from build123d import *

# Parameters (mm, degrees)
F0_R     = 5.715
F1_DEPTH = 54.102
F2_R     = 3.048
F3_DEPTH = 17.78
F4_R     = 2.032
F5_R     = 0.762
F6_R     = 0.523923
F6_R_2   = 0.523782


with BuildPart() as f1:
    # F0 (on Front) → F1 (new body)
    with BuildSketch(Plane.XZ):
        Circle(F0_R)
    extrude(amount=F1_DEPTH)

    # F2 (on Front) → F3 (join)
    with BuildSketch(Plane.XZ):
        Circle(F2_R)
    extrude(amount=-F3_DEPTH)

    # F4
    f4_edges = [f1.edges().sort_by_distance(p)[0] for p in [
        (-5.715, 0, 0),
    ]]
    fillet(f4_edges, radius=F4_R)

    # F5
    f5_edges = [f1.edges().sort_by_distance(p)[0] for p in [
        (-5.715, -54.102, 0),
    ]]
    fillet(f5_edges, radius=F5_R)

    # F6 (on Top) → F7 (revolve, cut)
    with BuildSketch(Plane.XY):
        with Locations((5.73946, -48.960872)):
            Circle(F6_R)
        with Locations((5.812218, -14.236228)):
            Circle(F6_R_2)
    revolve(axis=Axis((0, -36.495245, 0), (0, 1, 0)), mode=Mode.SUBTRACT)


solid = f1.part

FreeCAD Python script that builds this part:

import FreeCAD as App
import Part
import Sketcher

V = App.Vector
Q = App.Units.Quantity


def edges_at(feature, points):
    """Names of the edges that pass closest to the given points."""
    edges = feature.Shape.Edges
    near = lambda p: min(range(len(edges)), key=lambda i: edges[i].distToShape(Part.Vertex(*p))[0])
    return sorted({f"Edge{near(p) + 1}" for p in points})

doc = App.newDocument("Part")
body = doc.addObject("PartDesign::Body", "Body")

# Sketch on XZ plane
sketch1 = body.newObject("Sketcher::SketchObject", "Sketch")
sketch1.AttachmentSupport = (doc.getObject("XZ_Plane"), [""])
sketch1.MapMode = "FlatFace"
sketch1.addGeometry(Part.Circle(V(0, 0, 0), V(0, 0, 1), 5.715), False)
sketch1.addConstraint([
    Sketcher.Constraint("Coincident", 0, 3, -1, 1),
    Sketcher.Constraint("Diameter", 0, Q("0.45 in")),
])
pad1 = body.newObject("PartDesign::Pad", "Pad")
pad1.Profile = sketch1
pad1.Length = Q("2.13 in")

# Sketch on XZ plane
sketch2 = body.newObject("Sketcher::SketchObject", "Sketch001")
sketch2.AttachmentSupport = (doc.getObject("XZ_Plane"), [""])
sketch2.MapMode = "FlatFace"
sketch2.addGeometry(Part.Circle(V(0, 0, 0), V(0, 0, 1), 3.048), False)
sketch2.addConstraint([
    Sketcher.Constraint("Coincident", 0, 3, -1, 1),
    Sketcher.Constraint("Diameter", 0, Q("0.24 in")),
])
pad2 = body.newObject("PartDesign::Pad", "Pad001")
pad2.Profile = sketch2
pad2.Length = Q("0.7 in")
pad2.Reversed = True
doc.recompute()

fillet = body.newObject("PartDesign::Fillet", "Fillet")
fillet.Base = (pad2, edges_at(pad2, [(-5.715, 0, 0)]))
fillet.Radius = Q("0.08 in")
doc.recompute()

fillet2 = body.newObject("PartDesign::Fillet", "Fillet001")
fillet2.Base = (fillet, edges_at(fillet, [(-5.715, -54.102, 0)]))
fillet2.Radius = Q("0.03 in")

# Sketch on XY plane
sketch3 = body.newObject("Sketcher::SketchObject", "Sketch002")
sketch3.AttachmentSupport = (doc.getObject("XY_Plane"), [""])
sketch3.MapMode = "FlatFace"
sketch3.addGeometry([
    Part.Circle(V(5.73946, -48.960872, 0), V(0, 0, 1), 0.523923),
    Part.Circle(V(5.812218, -14.236228, 0), V(0, 0, 1), 0.523782),
], False)
sketch3.addConstraint([
    Sketcher.Constraint("Diameter", 0, 1.047846),
    Sketcher.Constraint("Diameter", 1, 1.047564),
    Sketcher.Constraint("DistanceX", -1, 1, 0, 3, 5.73946),
    Sketcher.Constraint("DistanceY", 0, 3, -1, 1, 48.960872),
    Sketcher.Constraint("DistanceX", -1, 1, 1, 3, 5.812218),
    Sketcher.Constraint("DistanceY", 1, 3, -1, 1, 14.236228),
])
groove = body.newObject("PartDesign::Groove", "Groove")
groove.Profile = sketch3
groove.ReferenceAxis = (sketch3, ["V_Axis"])
groove.Angle = 360

doc.recompute()
